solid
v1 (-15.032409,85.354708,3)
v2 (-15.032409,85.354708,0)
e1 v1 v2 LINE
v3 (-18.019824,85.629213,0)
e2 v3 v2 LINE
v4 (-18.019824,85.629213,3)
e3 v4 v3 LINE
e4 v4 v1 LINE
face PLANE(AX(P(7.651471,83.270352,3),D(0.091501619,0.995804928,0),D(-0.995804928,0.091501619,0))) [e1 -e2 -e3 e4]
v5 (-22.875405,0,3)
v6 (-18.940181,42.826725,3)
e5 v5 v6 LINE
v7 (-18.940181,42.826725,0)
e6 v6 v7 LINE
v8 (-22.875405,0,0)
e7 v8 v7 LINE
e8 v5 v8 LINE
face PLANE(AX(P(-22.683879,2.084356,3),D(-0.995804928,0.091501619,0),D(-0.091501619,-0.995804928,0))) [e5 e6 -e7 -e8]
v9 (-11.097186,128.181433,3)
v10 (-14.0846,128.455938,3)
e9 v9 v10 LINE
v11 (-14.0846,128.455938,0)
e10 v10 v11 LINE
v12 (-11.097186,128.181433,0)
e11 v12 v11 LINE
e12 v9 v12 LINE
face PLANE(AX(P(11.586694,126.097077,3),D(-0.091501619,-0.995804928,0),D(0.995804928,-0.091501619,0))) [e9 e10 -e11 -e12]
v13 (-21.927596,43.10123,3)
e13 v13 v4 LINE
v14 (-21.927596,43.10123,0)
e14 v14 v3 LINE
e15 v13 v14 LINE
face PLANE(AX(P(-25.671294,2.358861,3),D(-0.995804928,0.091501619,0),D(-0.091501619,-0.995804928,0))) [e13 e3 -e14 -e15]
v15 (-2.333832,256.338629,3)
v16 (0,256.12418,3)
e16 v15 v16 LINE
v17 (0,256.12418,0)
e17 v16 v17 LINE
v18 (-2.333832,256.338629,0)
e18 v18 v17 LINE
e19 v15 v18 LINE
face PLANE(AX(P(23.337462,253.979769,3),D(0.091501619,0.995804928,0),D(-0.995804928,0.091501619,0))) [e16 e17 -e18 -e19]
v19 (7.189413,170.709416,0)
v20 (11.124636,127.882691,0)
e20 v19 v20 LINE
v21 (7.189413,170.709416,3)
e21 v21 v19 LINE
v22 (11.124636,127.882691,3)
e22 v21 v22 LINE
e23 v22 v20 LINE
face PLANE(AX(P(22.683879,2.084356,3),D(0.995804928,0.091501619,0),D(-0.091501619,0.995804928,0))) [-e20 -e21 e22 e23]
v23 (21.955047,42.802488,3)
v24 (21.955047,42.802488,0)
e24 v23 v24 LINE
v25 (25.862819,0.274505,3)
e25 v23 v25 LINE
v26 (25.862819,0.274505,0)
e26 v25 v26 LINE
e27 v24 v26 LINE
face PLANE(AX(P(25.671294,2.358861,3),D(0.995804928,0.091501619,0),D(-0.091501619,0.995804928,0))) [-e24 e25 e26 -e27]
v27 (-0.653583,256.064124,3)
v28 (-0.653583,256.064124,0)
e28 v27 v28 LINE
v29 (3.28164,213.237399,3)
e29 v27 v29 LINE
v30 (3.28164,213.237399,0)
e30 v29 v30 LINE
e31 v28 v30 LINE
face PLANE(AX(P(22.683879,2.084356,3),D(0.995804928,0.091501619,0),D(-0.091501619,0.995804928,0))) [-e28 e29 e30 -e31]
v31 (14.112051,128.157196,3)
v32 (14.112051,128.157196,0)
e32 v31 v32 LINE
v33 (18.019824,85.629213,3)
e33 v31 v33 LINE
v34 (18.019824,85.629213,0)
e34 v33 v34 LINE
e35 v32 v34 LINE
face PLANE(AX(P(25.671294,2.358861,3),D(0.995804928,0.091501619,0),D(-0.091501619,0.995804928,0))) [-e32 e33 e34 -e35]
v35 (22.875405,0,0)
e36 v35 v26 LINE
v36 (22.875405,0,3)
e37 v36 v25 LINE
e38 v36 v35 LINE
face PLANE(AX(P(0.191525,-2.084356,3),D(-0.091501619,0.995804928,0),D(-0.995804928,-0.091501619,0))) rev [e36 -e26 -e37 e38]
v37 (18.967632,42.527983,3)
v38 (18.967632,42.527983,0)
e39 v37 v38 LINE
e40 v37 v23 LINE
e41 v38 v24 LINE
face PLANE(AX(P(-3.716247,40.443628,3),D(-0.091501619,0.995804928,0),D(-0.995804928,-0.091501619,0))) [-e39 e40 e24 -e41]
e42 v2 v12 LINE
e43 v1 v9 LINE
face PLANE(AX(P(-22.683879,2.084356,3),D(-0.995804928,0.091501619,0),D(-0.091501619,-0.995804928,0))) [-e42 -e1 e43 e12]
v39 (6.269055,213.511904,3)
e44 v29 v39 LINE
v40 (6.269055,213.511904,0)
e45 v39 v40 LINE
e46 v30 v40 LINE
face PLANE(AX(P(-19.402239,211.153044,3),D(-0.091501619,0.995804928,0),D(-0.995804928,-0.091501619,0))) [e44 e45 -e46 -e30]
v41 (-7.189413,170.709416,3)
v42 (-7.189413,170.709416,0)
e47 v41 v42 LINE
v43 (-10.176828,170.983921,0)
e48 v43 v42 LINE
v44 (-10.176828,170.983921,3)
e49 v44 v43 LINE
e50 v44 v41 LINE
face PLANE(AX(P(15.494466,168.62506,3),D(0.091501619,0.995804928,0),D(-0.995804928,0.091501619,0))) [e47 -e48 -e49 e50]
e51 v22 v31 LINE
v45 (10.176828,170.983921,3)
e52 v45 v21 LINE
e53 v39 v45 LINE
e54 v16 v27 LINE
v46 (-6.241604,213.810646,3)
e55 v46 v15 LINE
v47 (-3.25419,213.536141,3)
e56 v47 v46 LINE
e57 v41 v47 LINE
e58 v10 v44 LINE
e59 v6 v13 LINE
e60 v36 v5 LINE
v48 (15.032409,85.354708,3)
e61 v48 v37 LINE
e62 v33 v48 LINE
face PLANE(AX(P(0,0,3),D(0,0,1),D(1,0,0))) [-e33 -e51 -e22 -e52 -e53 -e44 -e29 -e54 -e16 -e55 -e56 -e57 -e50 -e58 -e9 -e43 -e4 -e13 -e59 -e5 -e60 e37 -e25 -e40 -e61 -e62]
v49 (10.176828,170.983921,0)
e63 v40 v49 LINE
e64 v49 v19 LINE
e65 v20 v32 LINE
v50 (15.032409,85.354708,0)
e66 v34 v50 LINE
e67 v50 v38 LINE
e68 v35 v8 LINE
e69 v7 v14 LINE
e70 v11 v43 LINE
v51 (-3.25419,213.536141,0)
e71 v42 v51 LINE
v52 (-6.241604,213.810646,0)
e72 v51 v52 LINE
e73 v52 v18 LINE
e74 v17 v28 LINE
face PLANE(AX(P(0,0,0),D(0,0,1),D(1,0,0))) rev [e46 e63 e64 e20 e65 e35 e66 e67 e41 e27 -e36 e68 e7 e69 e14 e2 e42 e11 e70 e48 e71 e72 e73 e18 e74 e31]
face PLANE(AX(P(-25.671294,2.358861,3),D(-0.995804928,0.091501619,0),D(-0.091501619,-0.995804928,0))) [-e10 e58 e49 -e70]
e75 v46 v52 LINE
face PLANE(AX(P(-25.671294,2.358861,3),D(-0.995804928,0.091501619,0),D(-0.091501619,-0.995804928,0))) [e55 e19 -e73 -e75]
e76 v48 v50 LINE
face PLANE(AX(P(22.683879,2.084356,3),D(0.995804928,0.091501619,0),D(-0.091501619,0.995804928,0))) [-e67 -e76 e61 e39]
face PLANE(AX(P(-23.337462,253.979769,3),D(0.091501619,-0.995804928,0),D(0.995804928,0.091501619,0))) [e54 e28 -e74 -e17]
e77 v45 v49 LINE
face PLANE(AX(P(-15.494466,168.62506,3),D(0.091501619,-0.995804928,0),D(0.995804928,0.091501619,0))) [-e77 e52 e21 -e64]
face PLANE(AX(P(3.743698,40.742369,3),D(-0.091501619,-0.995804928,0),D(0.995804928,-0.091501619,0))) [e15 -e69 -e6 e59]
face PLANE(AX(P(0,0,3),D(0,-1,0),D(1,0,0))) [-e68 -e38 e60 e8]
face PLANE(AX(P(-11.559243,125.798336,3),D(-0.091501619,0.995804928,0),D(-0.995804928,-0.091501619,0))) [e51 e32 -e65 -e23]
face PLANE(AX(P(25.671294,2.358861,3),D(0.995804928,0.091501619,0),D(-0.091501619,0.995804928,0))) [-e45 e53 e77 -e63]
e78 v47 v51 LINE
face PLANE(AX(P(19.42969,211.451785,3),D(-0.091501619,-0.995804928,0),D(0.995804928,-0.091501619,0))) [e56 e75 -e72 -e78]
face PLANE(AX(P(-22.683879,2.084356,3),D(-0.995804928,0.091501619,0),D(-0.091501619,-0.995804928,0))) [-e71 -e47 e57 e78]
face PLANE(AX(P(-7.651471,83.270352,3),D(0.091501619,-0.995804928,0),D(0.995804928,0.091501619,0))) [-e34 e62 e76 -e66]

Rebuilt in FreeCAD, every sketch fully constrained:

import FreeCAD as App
import Part
import Sketcher

V = App.Vector

doc = App.newDocument("Part")
body = doc.addObject("PartDesign::Body", "Body")

# Sketch on XY plane
sketch1 = body.newObject("Sketcher::SketchObject", "Sketch")
sketch1.AttachmentSupport = (doc.getObject("XY_Plane"), [""])
sketch1.MapMode = "FlatFace"
sketch1.addGeometry(Part.LineSegment(V(-0.653583, 256.064124, 0), V(0, 256.12418, 0)), False)
sketch1.addGeometry(Part.LineSegment(V(0, 256.12418, 0), V(-2.333832, 256.338629, 0)), False)
sketch1.addGeometry(Part.LineSegment(V(-2.333832, 256.338629, 0), V(-6.241604, 213.810646, 0)), False)
sketch1.addGeometry(Part.LineSegment(V(-6.241604, 213.810646, 0), V(-3.25419, 213.536141, 0)), False)
sketch1.addGeometry(Part.LineSegment(V(-3.25419, 213.536141, 0), V(-7.189413, 170.709416, 0)), False)
sketch1.addGeometry(Part.LineSegment(V(-7.189413, 170.709416, 0), V(-10.176828, 170.983921, 0)), False)
sketch1.addGeometry(Part.LineSegment(V(-10.176828, 170.983921, 0), V(-14.0846, 128.455938, 0)), False)
sketch1.addGeometry(Part.LineSegment(V(-14.0846, 128.455938, 0), V(-11.097186, 128.181433, 0)), False)
sketch1.addGeometry(Part.LineSegment(V(-11.097186, 128.181433, 0), V(-15.032409, 85.354708, 0)), False)
sketch1.addGeometry(Part.LineSegment(V(-15.032409, 85.354708, 0), V(-18.019824, 85.629213, 0)), False)
sketch1.addGeometry(Part.LineSegment(V(-18.019824, 85.629213, 0), V(-21.927596, 43.10123, 0)), False)
sketch1.addGeometry(Part.LineSegment(V(-21.927596, 43.10123, 0), V(-18.940181, 42.826725, 0)), False)
sketch1.addGeometry(Part.LineSegment(V(-18.940181, 42.826725, 0), V(-22.875405, 0, 0)), False)
sketch1.addGeometry(Part.LineSegment(V(-22.875405, 0, 0), V(22.875405, 0, 0)), False)
sketch1.addGeometry(Part.LineSegment(V(22.875405, 0, 0), V(25.862819, 0.274505, 0)), False)
sketch1.addGeometry(Part.LineSegment(V(25.862819, 0.274505, 0), V(21.955047, 42.802488, 0)), False)
sketch1.addGeometry(Part.LineSegment(V(21.955047, 42.802488, 0), V(18.967632, 42.527983, 0)), False)
sketch1.addGeometry(Part.LineSegment(V(18.967632, 42.527983, 0), V(15.032409, 85.354708, 0)), False)
sketch1.addGeometry(Part.LineSegment(V(15.032409, 85.354708, 0), V(18.019824, 85.629213, 0)), False)
sketch1.addGeometry(Part.LineSegment(V(18.019824, 85.629213, 0), V(14.112051, 128.157196, 0)), False)
sketch1.addGeometry(Part.LineSegment(V(14.112051, 128.157196, 0), V(11.124636, 127.882691, 0)), False)
sketch1.addGeometry(Part.LineSegment(V(11.124636, 127.882691, 0), V(7.189413, 170.709416, 0)), False)
sketch1.addGeometry(Part.LineSegment(V(7.189413, 170.709416, 0), V(10.176828, 170.983921, 0)), False)
sketch1.addGeometry(Part.LineSegment(V(10.176828, 170.983921, 0), V(6.269055, 213.511904, 0)), False)
sketch1.addGeometry(Part.LineSegment(V(6.269055, 213.511904, 0), V(3.28164, 213.237399, 0)), False)
sketch1.addGeometry(Part.LineSegment(V(3.28164, 213.237399, 0), V(-0.653583, 256.064124, 0)), False)
sketch1.addConstraint(Sketcher.Constraint("Coincident", 0, 2, 1, 1))
sketch1.addConstraint(Sketcher.Constraint("Coincident", 1, 2, 2, 1))
sketch1.addConstraint(Sketcher.Constraint("Coincident", 2, 2, 3, 1))
sketch1.addConstraint(Sketcher.Constraint("Coincident", 3, 2, 4, 1))
sketch1.addConstraint(Sketcher.Constraint("Coincident", 4, 2, 5, 1))
sketch1.addConstraint(Sketcher.Constraint("Coincident", 5, 2, 6, 1))
sketch1.addConstraint(Sketcher.Constraint("Coincident", 6, 2, 7, 1))
sketch1.addConstraint(Sketcher.Constraint("Coincident", 7, 2, 8, 1))
sketch1.addConstraint(Sketcher.Constraint("Coincident", 8, 2, 9, 1))
sketch1.addConstraint(Sketcher.Constraint("Coincident", 9, 2, 10, 1))
sketch1.addConstraint(Sketcher.Constraint("Coincident", 10, 2, 11, 1))
sketch1.addConstraint(Sketcher.Constraint("Coincident", 11, 2, 12, 1))
sketch1.addConstraint(Sketcher.Constraint("Coincident", 12, 2, 13, 1))
sketch1.addConstraint(Sketcher.Constraint("Coincident", 13, 2, 14, 1))
sketch1.addConstraint(Sketcher.Constraint("Coincident", 14, 2, 15, 1))
sketch1.addConstraint(Sketcher.Constraint("Coincident", 15, 2, 16, 1))
sketch1.addConstraint(Sketcher.Constraint("Coincident", 16, 2, 17, 1))
sketch1.addConstraint(Sketcher.Constraint("Coincident", 17, 2, 18, 1))
sketch1.addConstraint(Sketcher.Constraint("Coincident", 18, 2, 19, 1))
sketch1.addConstraint(Sketcher.Constraint("Coincident", 19, 2, 20, 1))
sketch1.addConstraint(Sketcher.Constraint("Coincident", 20, 2, 21, 1))
sketch1.addConstraint(Sketcher.Constraint("Coincident", 21, 2, 22, 1))
sketch1.addConstraint(Sketcher.Constraint("Coincident", 22, 2, 23, 1))
sketch1.addConstraint(Sketcher.Constraint("Coincident", 23, 2, 24, 1))
sketch1.addConstraint(Sketcher.Constraint("Coincident", 24, 2, 25, 1))
sketch1.addConstraint(Sketcher.Constraint("Coincident", 25, 2, 0, 1))
sketch1.addConstraint(Sketcher.Constraint("Horizontal", 13))
sketch1.addConstraint(Sketcher.Constraint("PointOnObject", 0, 2, -2))
sketch1.addConstraint(Sketcher.Constraint("PointOnObject", 12, 2, -1))
sketch1.addConstraint(Sketcher.Constraint("Distance", 3, 3.0))
sketch1.addConstraint(Sketcher.Constraint("Distance", 5, 3.0))
sketch1.addConstraint(Sketcher.Constraint("Distance", 7, 3.0))
sketch1.addConstraint(Sketcher.Constraint("Distance", 9, 3.0))
sketch1.addConstraint(Sketcher.Constraint("Distance", 11, 3.0))
sketch1.addConstraint(Sketcher.Constraint("Distance", 14, 3.0))
sketch1.addConstraint(Sketcher.Constraint("Distance", 16, 3.0))
sketch1.addConstraint(Sketcher.Constraint("Distance", 18, 3.0))
sketch1.addConstraint(Sketcher.Constraint("Distance", 20, 3.0))
sketch1.addConstraint(Sketcher.Constraint("Distance", 22, 3.0))
sketch1.addConstraint(Sketcher.Constraint("Distance", 24, 3.0))
sketch1.addConstraint(Sketcher.Constraint("DistanceX", 10, 2, 13, 2, 44.803001))
sketch1.addConstraint(Sketcher.Constraint("DistanceX", 11, 2, 14, 2, 44.803001))
sketch1.addConstraint(Sketcher.Constraint("DistanceX", 13, 1, 13, 2, 45.750809))
sketch1.addConstraint(Sketcher.Constraint("DistanceX", 6, 2, -1, 1, 14.0846))
sketch1.addConstraint(Sketcher.Constraint("DistanceY", -1, 1, 24, 2, 213.237399))
sketch1.addConstraint(Sketcher.Constraint("DistanceY", -1, 1, 0, 2, 256.12418))
sketch1.addConstraint(Sketcher.Constraint("DistanceX", 1, 2, -1, 1, 2.333832))
sketch1.addConstraint(Sketcher.Constraint("DistanceY", -1, 1, 1, 2, 256.338629))
sketch1.addConstraint(Sketcher.Constraint("DistanceX", 3, 2, -1, 1, 3.25419))
sketch1.addConstraint(Sketcher.Constraint("DistanceY", -1, 1, 3, 2, 213.536141))
sketch1.addConstraint(Sketcher.Constraint("DistanceY", -1, 1, 5, 2, 170.983921))
sketch1.addConstraint(Sketcher.Constraint("DistanceX", 8, 2, -1, 1, 15.032409))
sketch1.addConstraint(Sketcher.Constraint("DistanceY", -1, 1, 8, 2, 85.354708))
sketch1.addConstraint(Sketcher.Constraint("DistanceY", -1, 1, 10, 2, 43.10123))
sketch1.addConstraint(Sketcher.Constraint("DistanceX", 11, 2, -1, 1, 18.940181))
sketch1.addConstraint(Sketcher.Constraint("DistanceY", -1, 1, 15, 2, 42.802488))
sketch1.addConstraint(Sketcher.Constraint("DistanceX", -1, 1, 16, 2, 18.967632))
sketch1.addConstraint(Sketcher.Constraint("DistanceX", -1, 1, 17, 2, 15.032409))
sketch1.addConstraint(Sketcher.Constraint("DistanceY", -1, 1, 17, 2, 85.354708))
sketch1.addConstraint(Sketcher.Constraint("DistanceX", -1, 1, 19, 2, 14.112051))
sketch1.addConstraint(Sketcher.Constraint("DistanceY", -1, 1, 20, 2, 127.882691))
sketch1.addConstraint(Sketcher.Constraint("DistanceY", -1, 1, 22, 2, 170.983921))
sketch1.addConstraint(Sketcher.Constraint("DistanceX", -1, 1, 24, 2, 3.28164))
sketch1.addConstraint(Sketcher.Constraint("DistanceX", 4, 2, 2, 2, 0.947808))
sketch1.addConstraint(Sketcher.Constraint("DistanceY", 4, 2, 2, 2, 43.10123))
sketch1.addConstraint(Sketcher.Constraint("DistanceX", 4, 2, 1, 2, 4.855581))
sketch1.addConstraint(Sketcher.Constraint("DistanceY", 6, 2, 4, 2, 42.253478))
sketch1.addConstraint(Sketcher.Constraint("DistanceY", 7, 2, 5, 2, 42.802488))
sketch1.addConstraint(Sketcher.Constraint("DistanceY", 9, 2, 7, 2, 42.55222))
sketch1.addConstraint(Sketcher.Constraint("DistanceX", 10, 2, 7, 2, 10.830411))
sketch1.addConstraint(Sketcher.Constraint("DistanceX", 11, 2, 15, 2, 40.895228))
sketch1.addConstraint(Sketcher.Constraint("DistanceX", 18, 2, 16, 2, 0.947808))
sketch1.addConstraint(Sketcher.Constraint("DistanceY", 19, 2, 6, 2, 0.298741))
sketch1.addConstraint(Sketcher.Constraint("DistanceX", 5, 2, 21, 2, 17.366241))
sketch1.addConstraint(Sketcher.Constraint("DistanceY", 19, 2, 21, 2, 42.55222))
sketch1.addConstraint(Sketcher.Constraint("DistanceX", 2, 2, 23, 2, 12.510659))
sketch1.addConstraint(Sketcher.Constraint("DistanceX", 1, 2, 25, 2, 1.680249))
sketch1.addConstraint(Sketcher.Constraint("DistanceY", 2, 2, 25, 2, 42.253478))
pad1 = body.newObject("PartDesign::Pad", "Pad")
pad1.Profile = sketch1
pad1.Length = 3

doc.recompute()
